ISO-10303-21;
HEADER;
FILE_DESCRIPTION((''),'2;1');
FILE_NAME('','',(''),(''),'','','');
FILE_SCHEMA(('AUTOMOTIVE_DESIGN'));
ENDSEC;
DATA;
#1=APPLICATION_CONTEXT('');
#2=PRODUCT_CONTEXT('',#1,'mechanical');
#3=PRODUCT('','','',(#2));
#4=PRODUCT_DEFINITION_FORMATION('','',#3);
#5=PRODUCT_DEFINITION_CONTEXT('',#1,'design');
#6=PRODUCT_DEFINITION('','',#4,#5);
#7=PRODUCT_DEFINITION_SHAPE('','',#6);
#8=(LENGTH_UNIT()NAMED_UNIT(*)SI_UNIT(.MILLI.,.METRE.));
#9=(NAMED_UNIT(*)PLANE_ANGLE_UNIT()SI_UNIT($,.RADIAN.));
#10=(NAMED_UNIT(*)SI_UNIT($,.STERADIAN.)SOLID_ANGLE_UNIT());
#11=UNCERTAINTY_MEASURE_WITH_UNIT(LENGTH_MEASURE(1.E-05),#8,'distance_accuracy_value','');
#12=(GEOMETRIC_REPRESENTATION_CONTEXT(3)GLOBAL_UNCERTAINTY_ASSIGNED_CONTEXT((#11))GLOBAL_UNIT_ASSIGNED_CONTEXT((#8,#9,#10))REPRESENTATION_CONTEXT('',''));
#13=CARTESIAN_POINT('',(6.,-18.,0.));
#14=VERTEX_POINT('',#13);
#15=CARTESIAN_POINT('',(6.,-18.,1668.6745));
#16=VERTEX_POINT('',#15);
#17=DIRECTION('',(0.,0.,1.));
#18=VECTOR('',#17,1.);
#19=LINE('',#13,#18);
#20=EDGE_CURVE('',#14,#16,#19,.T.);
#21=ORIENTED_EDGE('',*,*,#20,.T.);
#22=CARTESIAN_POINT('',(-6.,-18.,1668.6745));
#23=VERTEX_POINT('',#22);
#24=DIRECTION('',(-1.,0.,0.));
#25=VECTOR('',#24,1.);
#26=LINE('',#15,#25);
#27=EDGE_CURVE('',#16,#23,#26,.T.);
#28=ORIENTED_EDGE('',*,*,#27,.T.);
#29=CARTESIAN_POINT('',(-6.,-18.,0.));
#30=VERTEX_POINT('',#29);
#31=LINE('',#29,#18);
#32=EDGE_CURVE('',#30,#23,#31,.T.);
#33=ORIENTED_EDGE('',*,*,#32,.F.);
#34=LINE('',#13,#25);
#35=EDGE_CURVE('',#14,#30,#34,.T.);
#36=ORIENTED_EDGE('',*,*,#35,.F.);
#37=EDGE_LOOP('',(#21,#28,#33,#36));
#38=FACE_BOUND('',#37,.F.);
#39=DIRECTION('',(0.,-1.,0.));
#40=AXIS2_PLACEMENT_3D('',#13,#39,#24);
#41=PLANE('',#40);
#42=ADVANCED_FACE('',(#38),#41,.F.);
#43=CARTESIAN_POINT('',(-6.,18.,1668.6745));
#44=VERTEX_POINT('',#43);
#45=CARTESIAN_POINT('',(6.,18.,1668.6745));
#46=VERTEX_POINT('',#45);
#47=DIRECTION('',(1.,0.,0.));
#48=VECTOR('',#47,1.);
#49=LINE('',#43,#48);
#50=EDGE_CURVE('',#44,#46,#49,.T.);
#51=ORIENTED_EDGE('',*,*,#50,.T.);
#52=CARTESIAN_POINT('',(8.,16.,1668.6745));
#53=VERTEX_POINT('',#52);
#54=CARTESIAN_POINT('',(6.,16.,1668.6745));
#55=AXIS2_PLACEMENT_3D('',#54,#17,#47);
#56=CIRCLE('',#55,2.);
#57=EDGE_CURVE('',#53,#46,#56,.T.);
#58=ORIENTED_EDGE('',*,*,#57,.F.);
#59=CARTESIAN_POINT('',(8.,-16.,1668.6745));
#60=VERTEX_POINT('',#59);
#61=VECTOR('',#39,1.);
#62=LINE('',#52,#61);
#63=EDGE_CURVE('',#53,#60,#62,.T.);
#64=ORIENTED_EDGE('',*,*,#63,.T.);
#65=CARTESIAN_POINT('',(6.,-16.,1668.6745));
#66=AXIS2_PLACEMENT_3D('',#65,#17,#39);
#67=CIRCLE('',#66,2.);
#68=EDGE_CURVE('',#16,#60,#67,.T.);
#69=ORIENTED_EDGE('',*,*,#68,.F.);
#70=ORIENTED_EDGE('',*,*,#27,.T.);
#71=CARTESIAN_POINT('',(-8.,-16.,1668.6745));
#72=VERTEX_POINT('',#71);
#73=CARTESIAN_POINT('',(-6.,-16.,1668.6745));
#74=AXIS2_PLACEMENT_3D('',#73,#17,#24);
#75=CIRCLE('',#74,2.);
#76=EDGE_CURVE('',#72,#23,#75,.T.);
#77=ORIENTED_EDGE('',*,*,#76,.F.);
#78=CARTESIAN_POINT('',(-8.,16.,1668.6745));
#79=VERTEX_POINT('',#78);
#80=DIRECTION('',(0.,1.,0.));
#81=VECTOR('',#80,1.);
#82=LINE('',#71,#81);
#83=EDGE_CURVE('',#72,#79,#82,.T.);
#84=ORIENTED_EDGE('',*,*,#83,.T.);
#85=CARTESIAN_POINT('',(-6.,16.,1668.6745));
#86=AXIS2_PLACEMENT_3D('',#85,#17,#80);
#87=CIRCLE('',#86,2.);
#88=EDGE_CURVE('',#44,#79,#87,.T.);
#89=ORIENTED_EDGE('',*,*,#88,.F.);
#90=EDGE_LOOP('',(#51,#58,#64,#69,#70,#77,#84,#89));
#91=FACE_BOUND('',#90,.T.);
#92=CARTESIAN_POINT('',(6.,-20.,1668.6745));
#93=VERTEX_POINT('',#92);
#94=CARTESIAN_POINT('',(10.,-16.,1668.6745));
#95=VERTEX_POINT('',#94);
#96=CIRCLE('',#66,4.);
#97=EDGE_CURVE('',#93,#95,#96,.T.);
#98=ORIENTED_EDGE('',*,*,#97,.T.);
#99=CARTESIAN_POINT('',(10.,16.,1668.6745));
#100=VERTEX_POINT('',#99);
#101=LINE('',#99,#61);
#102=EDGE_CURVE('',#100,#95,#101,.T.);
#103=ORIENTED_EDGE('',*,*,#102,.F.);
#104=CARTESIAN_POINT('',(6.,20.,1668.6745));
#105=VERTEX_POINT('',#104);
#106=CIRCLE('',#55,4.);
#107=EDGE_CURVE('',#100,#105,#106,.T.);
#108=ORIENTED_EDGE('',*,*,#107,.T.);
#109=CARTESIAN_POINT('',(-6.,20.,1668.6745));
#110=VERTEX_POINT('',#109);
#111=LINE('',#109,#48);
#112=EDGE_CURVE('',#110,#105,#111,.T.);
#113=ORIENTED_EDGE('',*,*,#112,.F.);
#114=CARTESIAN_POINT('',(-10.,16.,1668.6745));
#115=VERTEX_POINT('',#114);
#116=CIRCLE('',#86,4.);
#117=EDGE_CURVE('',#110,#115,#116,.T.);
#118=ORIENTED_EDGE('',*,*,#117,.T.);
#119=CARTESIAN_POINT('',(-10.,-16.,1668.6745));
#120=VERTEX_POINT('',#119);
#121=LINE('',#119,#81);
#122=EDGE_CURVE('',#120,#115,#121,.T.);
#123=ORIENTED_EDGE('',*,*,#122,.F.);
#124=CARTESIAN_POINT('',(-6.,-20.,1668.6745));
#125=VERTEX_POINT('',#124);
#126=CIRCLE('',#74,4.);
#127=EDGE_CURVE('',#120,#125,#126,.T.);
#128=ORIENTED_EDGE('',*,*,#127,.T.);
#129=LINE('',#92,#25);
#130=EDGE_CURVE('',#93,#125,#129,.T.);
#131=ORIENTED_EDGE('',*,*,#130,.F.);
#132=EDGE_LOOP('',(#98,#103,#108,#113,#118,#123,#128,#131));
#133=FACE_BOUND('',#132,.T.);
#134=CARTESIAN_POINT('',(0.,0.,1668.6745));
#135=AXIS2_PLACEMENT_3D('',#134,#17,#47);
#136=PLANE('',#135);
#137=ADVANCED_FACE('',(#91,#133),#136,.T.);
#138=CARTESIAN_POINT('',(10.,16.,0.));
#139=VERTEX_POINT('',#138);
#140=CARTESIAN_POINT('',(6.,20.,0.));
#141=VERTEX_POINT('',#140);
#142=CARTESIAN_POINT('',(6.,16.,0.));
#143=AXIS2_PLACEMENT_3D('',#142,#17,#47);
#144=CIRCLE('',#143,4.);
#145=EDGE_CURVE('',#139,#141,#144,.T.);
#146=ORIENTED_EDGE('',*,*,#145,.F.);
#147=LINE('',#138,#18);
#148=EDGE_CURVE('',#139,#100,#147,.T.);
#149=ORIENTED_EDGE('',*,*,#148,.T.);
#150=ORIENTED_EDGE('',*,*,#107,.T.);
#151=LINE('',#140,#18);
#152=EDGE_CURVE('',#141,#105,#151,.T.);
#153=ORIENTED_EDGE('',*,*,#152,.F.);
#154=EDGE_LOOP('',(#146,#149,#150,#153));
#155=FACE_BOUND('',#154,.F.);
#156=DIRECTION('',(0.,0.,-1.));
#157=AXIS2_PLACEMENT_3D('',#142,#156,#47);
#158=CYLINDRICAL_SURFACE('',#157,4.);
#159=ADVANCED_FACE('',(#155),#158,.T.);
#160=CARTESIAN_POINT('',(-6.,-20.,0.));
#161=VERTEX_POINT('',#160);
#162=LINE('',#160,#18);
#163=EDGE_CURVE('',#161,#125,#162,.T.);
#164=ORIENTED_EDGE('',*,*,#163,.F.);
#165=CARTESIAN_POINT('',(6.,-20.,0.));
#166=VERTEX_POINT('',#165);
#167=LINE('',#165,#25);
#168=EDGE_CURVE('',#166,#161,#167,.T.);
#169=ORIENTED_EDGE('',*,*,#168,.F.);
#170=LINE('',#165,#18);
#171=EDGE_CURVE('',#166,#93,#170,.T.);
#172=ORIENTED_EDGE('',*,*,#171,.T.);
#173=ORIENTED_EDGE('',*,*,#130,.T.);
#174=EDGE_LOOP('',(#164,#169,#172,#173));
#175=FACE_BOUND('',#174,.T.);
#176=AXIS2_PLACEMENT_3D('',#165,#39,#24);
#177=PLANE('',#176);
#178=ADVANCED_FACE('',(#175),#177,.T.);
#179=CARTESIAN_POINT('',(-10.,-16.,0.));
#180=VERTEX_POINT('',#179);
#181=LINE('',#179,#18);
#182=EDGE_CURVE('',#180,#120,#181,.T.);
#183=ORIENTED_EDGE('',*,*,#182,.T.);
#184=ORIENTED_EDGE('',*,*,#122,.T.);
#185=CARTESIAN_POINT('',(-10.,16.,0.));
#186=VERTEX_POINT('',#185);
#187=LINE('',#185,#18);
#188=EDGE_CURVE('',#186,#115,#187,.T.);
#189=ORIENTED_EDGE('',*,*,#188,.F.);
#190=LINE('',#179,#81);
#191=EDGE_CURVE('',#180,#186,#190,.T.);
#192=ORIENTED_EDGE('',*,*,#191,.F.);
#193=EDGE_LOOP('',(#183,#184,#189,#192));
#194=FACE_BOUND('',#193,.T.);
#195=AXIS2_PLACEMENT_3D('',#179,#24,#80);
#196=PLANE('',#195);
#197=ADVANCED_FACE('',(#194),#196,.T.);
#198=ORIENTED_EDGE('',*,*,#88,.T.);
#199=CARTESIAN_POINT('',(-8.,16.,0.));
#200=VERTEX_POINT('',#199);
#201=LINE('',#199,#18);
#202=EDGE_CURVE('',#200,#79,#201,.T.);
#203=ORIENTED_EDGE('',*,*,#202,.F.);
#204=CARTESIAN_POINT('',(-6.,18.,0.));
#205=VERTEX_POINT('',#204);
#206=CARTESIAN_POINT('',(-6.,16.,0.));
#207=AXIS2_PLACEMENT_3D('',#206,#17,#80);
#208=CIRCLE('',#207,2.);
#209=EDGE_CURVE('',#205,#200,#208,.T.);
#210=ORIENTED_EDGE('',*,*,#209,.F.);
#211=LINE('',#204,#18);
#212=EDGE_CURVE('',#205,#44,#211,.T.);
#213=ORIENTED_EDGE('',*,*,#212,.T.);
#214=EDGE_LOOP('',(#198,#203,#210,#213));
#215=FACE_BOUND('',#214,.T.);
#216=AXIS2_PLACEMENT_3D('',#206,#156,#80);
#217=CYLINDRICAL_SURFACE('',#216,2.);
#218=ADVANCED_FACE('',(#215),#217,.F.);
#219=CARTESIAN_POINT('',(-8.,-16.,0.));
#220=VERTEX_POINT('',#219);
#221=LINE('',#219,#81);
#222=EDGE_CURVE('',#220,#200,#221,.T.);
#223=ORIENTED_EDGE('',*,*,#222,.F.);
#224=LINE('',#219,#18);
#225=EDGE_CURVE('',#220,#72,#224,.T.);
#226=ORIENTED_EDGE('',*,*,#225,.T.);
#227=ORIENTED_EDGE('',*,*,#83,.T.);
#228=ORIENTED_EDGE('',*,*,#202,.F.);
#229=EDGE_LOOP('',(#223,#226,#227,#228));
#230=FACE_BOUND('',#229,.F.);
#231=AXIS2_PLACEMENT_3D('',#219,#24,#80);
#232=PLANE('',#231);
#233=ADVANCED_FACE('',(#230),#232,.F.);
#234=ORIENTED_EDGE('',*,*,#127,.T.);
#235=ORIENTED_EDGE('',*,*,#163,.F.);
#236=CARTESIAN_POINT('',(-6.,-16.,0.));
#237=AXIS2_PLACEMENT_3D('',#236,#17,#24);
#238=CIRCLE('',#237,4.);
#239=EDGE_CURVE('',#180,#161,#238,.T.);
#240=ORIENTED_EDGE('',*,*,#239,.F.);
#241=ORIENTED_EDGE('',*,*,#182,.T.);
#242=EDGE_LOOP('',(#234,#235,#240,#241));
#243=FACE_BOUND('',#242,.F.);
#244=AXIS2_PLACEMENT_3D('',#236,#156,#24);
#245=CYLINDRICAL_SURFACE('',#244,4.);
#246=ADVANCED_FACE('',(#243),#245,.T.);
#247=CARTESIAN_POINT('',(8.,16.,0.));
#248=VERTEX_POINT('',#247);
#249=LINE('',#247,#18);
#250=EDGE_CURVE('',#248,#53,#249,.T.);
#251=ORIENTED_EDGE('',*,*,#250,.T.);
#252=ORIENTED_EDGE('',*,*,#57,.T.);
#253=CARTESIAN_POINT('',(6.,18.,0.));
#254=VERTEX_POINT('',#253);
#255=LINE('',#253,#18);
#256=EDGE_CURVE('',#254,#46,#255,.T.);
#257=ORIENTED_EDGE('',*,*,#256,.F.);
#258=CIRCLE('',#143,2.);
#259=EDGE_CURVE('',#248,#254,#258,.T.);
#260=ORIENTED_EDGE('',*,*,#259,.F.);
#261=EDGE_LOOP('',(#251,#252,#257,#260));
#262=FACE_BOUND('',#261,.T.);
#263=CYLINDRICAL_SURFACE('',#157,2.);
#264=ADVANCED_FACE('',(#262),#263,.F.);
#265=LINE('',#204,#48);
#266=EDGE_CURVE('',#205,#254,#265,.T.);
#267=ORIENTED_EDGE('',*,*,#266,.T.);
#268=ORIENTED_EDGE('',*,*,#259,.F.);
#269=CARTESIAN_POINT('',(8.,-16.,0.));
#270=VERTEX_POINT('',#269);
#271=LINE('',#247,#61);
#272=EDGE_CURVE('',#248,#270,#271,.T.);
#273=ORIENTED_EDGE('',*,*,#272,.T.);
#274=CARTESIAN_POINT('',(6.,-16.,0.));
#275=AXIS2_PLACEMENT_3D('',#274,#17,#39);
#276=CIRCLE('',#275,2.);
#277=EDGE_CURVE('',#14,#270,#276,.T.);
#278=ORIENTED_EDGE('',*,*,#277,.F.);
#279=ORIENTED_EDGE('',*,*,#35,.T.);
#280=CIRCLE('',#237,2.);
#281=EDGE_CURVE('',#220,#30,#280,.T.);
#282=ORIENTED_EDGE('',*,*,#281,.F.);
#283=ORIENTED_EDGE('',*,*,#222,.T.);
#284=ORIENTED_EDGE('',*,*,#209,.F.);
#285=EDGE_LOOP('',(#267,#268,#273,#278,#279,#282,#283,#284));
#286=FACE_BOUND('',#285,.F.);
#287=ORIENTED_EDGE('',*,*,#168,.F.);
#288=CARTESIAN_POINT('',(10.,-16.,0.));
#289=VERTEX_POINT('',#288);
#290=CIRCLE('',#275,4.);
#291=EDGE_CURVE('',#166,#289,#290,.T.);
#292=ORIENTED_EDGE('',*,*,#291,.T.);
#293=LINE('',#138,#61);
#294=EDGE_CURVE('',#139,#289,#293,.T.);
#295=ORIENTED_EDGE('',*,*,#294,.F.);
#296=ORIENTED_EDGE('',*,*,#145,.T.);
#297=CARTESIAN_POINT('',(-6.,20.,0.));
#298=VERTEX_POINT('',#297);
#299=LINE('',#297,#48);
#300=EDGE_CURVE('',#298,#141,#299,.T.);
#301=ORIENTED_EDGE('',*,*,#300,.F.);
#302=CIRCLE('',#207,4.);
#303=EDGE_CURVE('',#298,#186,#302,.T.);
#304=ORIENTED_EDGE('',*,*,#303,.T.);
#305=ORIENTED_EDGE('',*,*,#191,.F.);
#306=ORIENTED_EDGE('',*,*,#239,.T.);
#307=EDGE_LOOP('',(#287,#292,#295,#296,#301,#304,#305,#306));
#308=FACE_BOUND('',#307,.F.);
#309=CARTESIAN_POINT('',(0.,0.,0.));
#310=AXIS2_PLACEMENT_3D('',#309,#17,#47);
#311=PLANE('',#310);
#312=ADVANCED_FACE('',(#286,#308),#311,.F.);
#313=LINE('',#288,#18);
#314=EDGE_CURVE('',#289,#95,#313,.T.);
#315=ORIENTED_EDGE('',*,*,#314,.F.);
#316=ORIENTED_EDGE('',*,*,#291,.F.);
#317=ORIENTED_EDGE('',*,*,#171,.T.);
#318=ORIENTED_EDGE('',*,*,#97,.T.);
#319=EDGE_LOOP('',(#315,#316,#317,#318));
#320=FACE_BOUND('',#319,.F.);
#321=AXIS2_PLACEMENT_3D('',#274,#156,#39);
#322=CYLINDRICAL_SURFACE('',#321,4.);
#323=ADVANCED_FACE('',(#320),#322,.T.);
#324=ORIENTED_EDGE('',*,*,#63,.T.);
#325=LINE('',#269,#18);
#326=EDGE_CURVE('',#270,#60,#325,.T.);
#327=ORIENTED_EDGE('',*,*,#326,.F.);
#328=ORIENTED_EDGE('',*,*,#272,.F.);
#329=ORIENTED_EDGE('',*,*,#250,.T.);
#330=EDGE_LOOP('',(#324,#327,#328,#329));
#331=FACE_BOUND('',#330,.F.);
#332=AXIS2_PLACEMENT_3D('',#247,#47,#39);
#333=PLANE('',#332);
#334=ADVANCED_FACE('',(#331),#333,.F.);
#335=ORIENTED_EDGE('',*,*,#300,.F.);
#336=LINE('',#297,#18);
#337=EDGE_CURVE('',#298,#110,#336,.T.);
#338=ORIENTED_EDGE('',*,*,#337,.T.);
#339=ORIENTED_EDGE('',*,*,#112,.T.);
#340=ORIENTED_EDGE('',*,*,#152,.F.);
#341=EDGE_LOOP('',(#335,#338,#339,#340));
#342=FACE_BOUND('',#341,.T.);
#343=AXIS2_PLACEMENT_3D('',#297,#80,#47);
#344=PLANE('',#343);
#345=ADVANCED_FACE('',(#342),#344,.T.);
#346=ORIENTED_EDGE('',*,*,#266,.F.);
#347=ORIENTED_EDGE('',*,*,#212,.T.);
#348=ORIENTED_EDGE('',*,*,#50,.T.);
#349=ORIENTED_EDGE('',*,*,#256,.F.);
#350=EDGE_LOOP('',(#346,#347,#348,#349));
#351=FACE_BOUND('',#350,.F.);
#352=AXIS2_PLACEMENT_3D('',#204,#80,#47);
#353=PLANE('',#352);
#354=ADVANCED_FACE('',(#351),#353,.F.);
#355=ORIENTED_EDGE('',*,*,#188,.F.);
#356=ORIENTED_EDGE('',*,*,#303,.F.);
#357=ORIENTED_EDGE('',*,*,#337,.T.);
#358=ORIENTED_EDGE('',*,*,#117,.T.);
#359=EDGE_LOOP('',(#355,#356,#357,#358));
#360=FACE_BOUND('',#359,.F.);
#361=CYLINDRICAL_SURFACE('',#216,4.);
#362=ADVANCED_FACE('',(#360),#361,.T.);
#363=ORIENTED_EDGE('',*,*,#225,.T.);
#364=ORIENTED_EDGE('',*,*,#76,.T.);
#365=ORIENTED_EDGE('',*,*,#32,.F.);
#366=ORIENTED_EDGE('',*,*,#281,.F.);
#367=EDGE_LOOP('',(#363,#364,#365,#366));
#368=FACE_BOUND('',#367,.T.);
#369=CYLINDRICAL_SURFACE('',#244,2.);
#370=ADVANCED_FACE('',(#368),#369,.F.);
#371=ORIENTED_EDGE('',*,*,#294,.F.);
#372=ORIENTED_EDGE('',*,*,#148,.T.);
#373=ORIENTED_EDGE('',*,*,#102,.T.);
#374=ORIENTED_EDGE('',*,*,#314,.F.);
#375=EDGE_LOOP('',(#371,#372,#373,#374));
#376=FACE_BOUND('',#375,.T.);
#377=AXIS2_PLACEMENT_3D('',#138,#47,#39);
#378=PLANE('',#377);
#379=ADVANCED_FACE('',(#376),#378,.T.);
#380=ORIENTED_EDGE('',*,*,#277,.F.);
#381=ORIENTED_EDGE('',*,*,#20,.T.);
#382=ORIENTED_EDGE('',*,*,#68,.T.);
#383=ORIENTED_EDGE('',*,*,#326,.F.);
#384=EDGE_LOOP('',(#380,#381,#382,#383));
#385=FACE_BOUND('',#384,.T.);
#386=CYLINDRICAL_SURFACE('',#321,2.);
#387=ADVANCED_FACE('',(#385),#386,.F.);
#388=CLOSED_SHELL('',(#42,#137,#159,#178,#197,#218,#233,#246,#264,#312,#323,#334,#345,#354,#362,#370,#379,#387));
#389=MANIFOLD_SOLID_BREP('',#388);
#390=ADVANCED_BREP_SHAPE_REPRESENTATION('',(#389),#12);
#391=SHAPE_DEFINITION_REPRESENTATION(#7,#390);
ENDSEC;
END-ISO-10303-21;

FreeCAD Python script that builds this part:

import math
import FreeCAD as App
import Part
import Sketcher

doc = App.newDocument("Part")
params = doc.addObject("Spreadsheet::Sheet", "Params")
for row, (alias, value) in enumerate([
    ("sketch1_radius", "4 mm"),
    ("sketch1_radius2", "2 mm"),
    ("pad1_length", "1668.6745 mm"),
], start=1):
    params.set(f"A{row}", alias)
    params.set(f"B{row}", "=" + value)
    params.setAlias(f"B{row}", alias)

body = doc.addObject("PartDesign::Body", "Body")

sketch1 = body.newObject("Sketcher::SketchObject", "Sketch")
sketch1.AttachmentSupport = (doc.getObject("XY_Plane"), [""])
sketch1.MapMode = "FlatFace"
sketch1.addGeometry(Part.LineSegment(App.Vector(-10, 16, 0), App.Vector(-10, -16, 0)), False)
sketch1.addGeometry(Part.ArcOfCircle(Part.Circle(App.Vector(-6, -16, 0), App.Vector(0, 0, 1), 4), math.radians(180), math.radians(270)), False)
sketch1.addGeometry(Part.LineSegment(App.Vector(-6, -20, 0), App.Vector(6, -20, 0)), False)
sketch1.addGeometry(Part.ArcOfCircle(Part.Circle(App.Vector(6, -16, 0), App.Vector(0, 0, 1), 4), math.radians(-90), math.radians(0)), False)
sketch1.addGeometry(Part.LineSegment(App.Vector(10, -16, 0), App.Vector(10, 16, 0)), False)
sketch1.addGeometry(Part.ArcOfCircle(Part.Circle(App.Vector(6, 16, 0), App.Vector(0, 0, 1), 4), math.radians(0), math.radians(90)), False)
sketch1.addGeometry(Part.LineSegment(App.Vector(6, 20, 0), App.Vector(-6, 20, 0)), False)
sketch1.addGeometry(Part.ArcOfCircle(Part.Circle(App.Vector(-6, 16, 0), App.Vector(0, 0, 1), 4), math.radians(90), math.radians(180)), False)
sketch1.addGeometry(Part.ArcOfCircle(Part.Circle(App.Vector(-6, 16, 0), App.Vector(0, 0, 1), 2), math.radians(90), math.radians(180)), False)
sketch1.addGeometry(Part.LineSegment(App.Vector(-6, 18, 0), App.Vector(6, 18, 0)), False)
sketch1.addGeometry(Part.ArcOfCircle(Part.Circle(App.Vector(6, 16, 0), App.Vector(0, 0, 1), 2), math.radians(0), math.radians(90)), False)
sketch1.addGeometry(Part.LineSegment(App.Vector(8, 16, 0), App.Vector(8, -16, 0)), False)
sketch1.addGeometry(Part.ArcOfCircle(Part.Circle(App.Vector(6, -16, 0), App.Vector(0, 0, 1), 2), math.radians(-90), math.radians(0)), False)
sketch1.addGeometry(Part.LineSegment(App.Vector(6, -18, 0), App.Vector(-6, -18, 0)), False)
sketch1.addGeometry(Part.ArcOfCircle(Part.Circle(App.Vector(-6, -16, 0), App.Vector(0, 0, 1), 2), math.radians(180), math.radians(270)), False)
sketch1.addGeometry(Part.LineSegment(App.Vector(-8, -16, 0), App.Vector(-8, 16, 0)), False)
sketch1.addConstraint(Sketcher.Constraint("Tangent", 0, 2, 1, 1))
sketch1.addConstraint(Sketcher.Constraint("Tangent", 1, 2, 2, 1))
sketch1.addConstraint(Sketcher.Constraint("Tangent", 2, 2, 3, 1))
sketch1.addConstraint(Sketcher.Constraint("Tangent", 3, 2, 4, 1))
sketch1.addConstraint(Sketcher.Constraint("Tangent", 4, 2, 5, 1))
sketch1.addConstraint(Sketcher.Constraint("Tangent", 5, 2, 6, 1))
sketch1.addConstraint(Sketcher.Constraint("Tangent", 6, 2, 7, 1))
sketch1.addConstraint(Sketcher.Constraint("Tangent", 7, 2, 0, 1))
sketch1.addConstraint(Sketcher.Constraint("Tangent", 8, 1, 9, 1))
sketch1.addConstraint(Sketcher.Constraint("Tangent", 9, 2, 10, 2))
sketch1.addConstraint(Sketcher.Constraint("Tangent", 10, 1, 11, 1))
sketch1.addConstraint(Sketcher.Constraint("Tangent", 11, 2, 12, 2))
sketch1.addConstraint(Sketcher.Constraint("Tangent", 12, 1, 13, 1))
sketch1.addConstraint(Sketcher.Constraint("Tangent", 13, 2, 14, 2))
sketch1.addConstraint(Sketcher.Constraint("Tangent", 14, 1, 15, 1))
sketch1.addConstraint(Sketcher.Constraint("Tangent", 15, 2, 8, 2))
sketch1.addConstraint(Sketcher.Constraint("Vertical", 0))
sketch1.addConstraint(Sketcher.Constraint("Horizontal", 2))
sketch1.addConstraint(Sketcher.Constraint("Vertical", 4))
sketch1.addConstraint(Sketcher.Constraint("Horizontal", 6))
sketch1.addConstraint(Sketcher.Constraint("Horizontal", 9))
sketch1.addConstraint(Sketcher.Constraint("Vertical", 11))
sketch1.addConstraint(Sketcher.Constraint("Horizontal", 13))
sketch1.addConstraint(Sketcher.Constraint("Vertical", 15))
sketch1.addConstraint(Sketcher.Constraint("Coincident", 8, 3, 7, 3))
sketch1.addConstraint(Sketcher.Constraint("Coincident", 10, 3, 5, 3))
sketch1.addConstraint(Sketcher.Constraint("Coincident", 12, 3, 3, 3))
sketch1.addConstraint(Sketcher.Constraint("Equal", 1, 3))
sketch1.addConstraint(Sketcher.Constraint("Equal", 3, 5))
sketch1.addConstraint(Sketcher.Constraint("Equal", 5, 7))
sketch1.addConstraint(Sketcher.Constraint("Equal", 12, 14))
sketch1.addConstraint(Sketcher.Constraint("Symmetric", 1, 3, 5, 3, -1, 1))
sketch1.addConstraint(Sketcher.Constraint("Radius", 1, 4.0))
sketch1.addConstraint(Sketcher.Constraint("Radius", 8, 2.0))
sketch1.addConstraint(Sketcher.Constraint("DistanceX", 0, 2, -1, 1, 10.0))
sketch1.addConstraint(Sketcher.Constraint("DistanceY", 1, 2, -1, 1, 20.0))
sketch1.setExpression("Constraints[32]", "Params.sketch1_radius")
sketch1.setExpression("Constraints[33]", "Params.sketch1_radius2")
pad1 = body.newObject("PartDesign::Pad", "Pad")
pad1.Profile = sketch1
pad1.setExpression("Length", "Params.pad1_length")

doc.recompute()
